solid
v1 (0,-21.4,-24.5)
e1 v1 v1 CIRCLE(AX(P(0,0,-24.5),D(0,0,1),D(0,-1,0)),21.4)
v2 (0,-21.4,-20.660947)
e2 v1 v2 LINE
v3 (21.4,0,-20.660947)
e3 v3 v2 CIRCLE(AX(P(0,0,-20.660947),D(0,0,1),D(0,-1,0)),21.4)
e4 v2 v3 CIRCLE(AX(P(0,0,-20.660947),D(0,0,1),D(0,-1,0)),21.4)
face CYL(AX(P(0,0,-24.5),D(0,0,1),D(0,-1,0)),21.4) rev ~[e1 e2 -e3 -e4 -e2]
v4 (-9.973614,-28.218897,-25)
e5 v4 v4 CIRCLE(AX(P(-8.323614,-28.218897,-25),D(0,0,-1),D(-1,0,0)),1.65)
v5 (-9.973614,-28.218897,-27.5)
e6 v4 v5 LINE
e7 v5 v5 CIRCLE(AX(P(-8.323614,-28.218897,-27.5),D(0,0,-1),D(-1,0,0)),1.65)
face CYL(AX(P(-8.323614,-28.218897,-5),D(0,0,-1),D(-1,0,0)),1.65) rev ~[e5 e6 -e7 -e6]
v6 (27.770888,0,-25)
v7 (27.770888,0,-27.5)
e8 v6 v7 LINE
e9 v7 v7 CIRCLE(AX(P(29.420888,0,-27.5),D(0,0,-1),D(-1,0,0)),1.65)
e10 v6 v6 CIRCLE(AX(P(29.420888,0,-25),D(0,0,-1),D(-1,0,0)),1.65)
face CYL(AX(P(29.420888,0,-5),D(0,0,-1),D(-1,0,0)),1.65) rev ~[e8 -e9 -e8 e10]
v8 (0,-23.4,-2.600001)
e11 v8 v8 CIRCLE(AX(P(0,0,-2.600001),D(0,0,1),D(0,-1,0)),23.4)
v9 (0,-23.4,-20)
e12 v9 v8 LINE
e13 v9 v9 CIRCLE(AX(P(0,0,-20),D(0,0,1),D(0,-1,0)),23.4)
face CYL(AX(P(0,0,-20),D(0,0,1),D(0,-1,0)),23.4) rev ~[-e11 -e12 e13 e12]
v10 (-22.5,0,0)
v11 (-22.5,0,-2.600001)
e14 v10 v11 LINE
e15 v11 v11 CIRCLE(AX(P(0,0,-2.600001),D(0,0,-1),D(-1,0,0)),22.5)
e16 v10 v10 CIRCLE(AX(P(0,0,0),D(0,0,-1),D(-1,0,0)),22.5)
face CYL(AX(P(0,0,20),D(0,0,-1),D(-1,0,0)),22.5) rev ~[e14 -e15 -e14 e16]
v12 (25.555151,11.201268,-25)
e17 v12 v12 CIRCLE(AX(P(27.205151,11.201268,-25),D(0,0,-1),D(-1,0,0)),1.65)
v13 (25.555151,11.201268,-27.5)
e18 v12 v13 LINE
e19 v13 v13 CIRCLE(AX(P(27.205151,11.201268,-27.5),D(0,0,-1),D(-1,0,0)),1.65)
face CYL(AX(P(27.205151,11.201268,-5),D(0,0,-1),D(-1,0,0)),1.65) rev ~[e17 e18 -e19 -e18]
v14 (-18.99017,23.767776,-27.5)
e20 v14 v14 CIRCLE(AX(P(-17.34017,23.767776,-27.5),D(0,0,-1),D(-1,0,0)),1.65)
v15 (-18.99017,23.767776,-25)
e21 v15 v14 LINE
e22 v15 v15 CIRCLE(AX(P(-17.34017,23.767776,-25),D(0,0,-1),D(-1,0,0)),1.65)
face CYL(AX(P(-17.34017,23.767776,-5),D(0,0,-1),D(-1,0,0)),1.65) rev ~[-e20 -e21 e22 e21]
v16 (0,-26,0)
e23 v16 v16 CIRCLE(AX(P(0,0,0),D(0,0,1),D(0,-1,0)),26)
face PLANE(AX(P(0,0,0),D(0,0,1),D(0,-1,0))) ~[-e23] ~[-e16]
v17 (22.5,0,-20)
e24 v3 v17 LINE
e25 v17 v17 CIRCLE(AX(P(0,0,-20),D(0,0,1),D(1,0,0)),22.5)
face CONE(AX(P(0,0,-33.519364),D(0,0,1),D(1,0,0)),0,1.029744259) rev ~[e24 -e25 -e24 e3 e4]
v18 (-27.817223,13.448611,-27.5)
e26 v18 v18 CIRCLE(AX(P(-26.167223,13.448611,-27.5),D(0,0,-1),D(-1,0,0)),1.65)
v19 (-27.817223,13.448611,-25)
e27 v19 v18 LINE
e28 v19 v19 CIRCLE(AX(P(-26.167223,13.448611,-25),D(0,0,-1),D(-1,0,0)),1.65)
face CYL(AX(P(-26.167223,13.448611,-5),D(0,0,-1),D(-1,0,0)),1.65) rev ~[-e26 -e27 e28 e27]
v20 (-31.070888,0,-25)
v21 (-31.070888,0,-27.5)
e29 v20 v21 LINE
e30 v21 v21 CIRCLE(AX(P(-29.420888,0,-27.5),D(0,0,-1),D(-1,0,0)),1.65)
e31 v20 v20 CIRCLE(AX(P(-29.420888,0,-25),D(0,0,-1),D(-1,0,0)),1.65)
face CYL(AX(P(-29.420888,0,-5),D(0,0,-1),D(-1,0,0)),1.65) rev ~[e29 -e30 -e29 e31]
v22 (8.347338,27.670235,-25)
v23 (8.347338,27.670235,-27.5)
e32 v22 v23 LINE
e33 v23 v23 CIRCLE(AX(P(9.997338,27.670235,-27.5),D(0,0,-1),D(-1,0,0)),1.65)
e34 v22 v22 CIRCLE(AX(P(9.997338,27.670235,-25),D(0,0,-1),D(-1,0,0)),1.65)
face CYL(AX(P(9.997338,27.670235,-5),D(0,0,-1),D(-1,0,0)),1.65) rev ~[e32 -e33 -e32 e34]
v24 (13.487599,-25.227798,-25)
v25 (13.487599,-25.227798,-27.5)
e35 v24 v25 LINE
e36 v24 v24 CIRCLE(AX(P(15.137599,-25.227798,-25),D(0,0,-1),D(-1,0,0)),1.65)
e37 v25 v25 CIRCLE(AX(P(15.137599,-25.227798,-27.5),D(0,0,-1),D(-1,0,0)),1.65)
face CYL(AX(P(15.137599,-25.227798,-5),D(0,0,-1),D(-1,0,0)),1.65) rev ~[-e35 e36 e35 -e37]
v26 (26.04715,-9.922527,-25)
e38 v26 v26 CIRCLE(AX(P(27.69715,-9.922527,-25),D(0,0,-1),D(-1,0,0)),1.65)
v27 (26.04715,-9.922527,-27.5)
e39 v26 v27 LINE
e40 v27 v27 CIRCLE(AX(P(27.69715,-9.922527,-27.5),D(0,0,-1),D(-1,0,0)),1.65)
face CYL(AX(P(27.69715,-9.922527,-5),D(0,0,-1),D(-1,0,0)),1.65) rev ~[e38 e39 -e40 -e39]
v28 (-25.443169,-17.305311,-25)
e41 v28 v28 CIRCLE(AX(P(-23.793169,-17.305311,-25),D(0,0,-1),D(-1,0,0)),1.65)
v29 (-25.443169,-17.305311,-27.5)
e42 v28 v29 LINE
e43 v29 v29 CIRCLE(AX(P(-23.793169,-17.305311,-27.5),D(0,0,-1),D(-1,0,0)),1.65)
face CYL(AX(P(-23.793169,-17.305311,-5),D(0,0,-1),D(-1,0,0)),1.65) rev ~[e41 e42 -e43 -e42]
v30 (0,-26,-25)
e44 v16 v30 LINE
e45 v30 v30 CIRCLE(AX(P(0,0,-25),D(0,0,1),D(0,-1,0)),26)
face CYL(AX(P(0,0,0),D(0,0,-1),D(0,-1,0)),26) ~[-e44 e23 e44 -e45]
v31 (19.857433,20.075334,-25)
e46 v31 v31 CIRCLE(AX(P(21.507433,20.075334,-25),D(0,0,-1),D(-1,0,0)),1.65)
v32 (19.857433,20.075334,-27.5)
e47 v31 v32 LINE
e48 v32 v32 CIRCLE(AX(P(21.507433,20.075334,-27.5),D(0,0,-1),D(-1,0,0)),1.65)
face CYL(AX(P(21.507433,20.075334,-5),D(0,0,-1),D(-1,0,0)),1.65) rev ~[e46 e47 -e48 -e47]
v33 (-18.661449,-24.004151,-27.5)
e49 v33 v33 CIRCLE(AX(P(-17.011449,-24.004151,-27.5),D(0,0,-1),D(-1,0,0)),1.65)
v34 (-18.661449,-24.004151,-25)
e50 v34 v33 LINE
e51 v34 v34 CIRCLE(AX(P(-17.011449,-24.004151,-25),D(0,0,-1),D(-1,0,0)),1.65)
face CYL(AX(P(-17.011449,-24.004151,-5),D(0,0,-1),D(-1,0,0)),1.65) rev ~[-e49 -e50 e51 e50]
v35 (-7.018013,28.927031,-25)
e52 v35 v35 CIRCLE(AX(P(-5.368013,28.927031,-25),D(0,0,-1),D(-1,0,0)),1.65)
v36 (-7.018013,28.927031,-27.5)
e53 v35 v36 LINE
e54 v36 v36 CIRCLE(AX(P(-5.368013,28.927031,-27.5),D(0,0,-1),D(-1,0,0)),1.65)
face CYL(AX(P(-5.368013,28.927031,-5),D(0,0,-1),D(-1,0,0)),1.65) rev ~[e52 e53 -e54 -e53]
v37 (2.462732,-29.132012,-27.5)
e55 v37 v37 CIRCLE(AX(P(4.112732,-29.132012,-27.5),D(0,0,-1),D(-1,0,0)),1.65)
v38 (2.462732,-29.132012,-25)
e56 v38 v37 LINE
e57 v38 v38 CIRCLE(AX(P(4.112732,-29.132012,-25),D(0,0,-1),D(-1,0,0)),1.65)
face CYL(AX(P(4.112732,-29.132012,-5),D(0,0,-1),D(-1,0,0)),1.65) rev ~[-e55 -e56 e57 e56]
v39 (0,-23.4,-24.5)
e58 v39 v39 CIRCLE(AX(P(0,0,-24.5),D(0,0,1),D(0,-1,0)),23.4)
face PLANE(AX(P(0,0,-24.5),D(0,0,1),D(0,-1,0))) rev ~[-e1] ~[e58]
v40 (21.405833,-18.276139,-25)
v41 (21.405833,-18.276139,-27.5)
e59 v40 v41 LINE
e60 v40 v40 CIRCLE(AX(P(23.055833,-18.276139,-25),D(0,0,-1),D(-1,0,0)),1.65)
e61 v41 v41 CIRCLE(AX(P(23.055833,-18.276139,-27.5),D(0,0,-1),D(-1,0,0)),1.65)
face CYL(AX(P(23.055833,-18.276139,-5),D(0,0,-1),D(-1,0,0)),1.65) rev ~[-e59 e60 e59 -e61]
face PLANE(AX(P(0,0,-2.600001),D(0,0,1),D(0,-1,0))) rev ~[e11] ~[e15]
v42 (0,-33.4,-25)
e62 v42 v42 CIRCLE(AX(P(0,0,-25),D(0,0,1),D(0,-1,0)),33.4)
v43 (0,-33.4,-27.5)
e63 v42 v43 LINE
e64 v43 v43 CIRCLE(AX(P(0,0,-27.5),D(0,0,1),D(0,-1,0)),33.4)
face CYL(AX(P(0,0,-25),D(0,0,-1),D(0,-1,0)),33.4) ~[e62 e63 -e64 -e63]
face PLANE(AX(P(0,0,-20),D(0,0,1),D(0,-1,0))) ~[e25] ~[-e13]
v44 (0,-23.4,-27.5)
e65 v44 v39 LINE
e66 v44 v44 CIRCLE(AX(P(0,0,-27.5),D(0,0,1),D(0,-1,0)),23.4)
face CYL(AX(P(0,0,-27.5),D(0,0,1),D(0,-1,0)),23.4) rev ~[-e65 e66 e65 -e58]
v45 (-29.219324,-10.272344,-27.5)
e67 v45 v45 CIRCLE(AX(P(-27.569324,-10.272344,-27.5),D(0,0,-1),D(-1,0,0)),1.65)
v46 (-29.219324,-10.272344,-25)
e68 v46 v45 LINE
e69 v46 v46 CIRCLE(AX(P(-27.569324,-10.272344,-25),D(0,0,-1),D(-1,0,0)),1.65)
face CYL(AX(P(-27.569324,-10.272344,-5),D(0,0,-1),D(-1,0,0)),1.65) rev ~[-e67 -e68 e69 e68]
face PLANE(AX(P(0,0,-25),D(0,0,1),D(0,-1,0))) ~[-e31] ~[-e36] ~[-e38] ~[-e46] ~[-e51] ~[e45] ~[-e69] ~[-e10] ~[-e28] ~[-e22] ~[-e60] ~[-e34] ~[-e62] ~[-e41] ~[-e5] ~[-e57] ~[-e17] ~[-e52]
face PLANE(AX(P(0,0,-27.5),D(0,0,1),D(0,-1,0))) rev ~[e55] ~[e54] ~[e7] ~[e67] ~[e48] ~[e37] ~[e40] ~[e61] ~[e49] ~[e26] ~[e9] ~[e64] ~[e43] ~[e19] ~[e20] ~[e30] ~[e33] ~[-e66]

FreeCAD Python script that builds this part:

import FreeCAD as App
import Part
import Sketcher
from FreeCAD import Vector
Q = App.Units.Quantity

doc = App.newDocument("Part")
body = doc.addObject("PartDesign::Body", "Body")

# Sketch on YZ plane
sketch1 = body.newObject("Sketcher::SketchObject", "Sketch")
sketch1.AttachmentSupport = (doc.getObject("YZ_Plane"), [""])
sketch1.MapMode = "FlatFace"
sketch1.addGeometry([
    Part.LineSegment(Vector(0, -2.6, 0), Vector(0, 0, 0)),  # 0
    Part.LineSegment(Vector(0, 0, 0), Vector(-26, 0, 0)),  # 1
    Part.LineSegment(Vector(-26, 0, 0), Vector(-26, -25, 0)),  # 2
    Part.LineSegment(Vector(-26, -25, 0), Vector(-33.4, -25, 0)),  # 3
    Part.LineSegment(Vector(-33.4, -25, 0), Vector(-33.4, -27.5, 0)),  # 4
    Part.LineSegment(Vector(-33.4, -27.5, 0), Vector(-23.4, -27.5, 0)),  # 5
    Part.LineSegment(Vector(-23.4, -27.5, 0), Vector(-23.4, -24.5, 0)),  # 6
    Part.LineSegment(Vector(-23.4, -24.5, 0), Vector(-21.4, -24.5, 0)),  # 7
    Part.LineSegment(Vector(-21.4, -24.5, 0), Vector(-21.4, -20, 0)),  # 8
    Part.LineSegment(Vector(-21.4, -20, 0), Vector(-23.4, -20, 0)),  # 9
    Part.LineSegment(Vector(-23.4, -20, 0), Vector(-23.4, -2.6, 0)),  # 10
    Part.LineSegment(Vector(-23.4, -2.6, 0), Vector(0, -2.6, 0)),  # 11
], False)
sketch1.addConstraint([
    Sketcher.Constraint("Coincident", 0, 2, 1, 1),
    Sketcher.Constraint("Coincident", 1, 2, 2, 1),
    Sketcher.Constraint("Coincident", 2, 2, 3, 1),
    Sketcher.Constraint("Coincident", 3, 2, 4, 1),
    Sketcher.Constraint("Coincident", 4, 2, 5, 1),
    Sketcher.Constraint("Coincident", 5, 2, 6, 1),
    Sketcher.Constraint("Coincident", 6, 2, 7, 1),
    Sketcher.Constraint("Coincident", 7, 2, 8, 1),
    Sketcher.Constraint("Coincident", 8, 2, 9, 1),
    Sketcher.Constraint("Coincident", 9, 2, 10, 1),
    Sketcher.Constraint("Coincident", 10, 2, 11, 1),
    Sketcher.Constraint("Coincident", 11, 2, 0, 1),
    Sketcher.Constraint("Vertical", 0),
    Sketcher.Constraint("Horizontal", 1),
    Sketcher.Constraint("Vertical", 2),
    Sketcher.Constraint("Horizontal", 3),
    Sketcher.Constraint("Vertical", 4),
    Sketcher.Constraint("Horizontal", 5),
    Sketcher.Constraint("Vertical", 6),
    Sketcher.Constraint("Horizontal", 7),
    Sketcher.Constraint("Vertical", 8),
    Sketcher.Constraint("Horizontal", 9),
    Sketcher.Constraint("Vertical", 10),
    Sketcher.Constraint("Horizontal", 11),
    Sketcher.Constraint("Coincident", 0, 2, -1, 1),
    Sketcher.Constraint("Vertical", 6, 2, 9, 2),
    Sketcher.Constraint("DistanceX", 1, 2, 1, 1, Q("26 mm")),
    Sketcher.Constraint("DistanceX", 5, 1, 5, 2, Q("10 mm")),
    Sketcher.Constraint("DistanceX", 7, 1, 7, 2, Q("2 mm")),
    Sketcher.Constraint("DistanceY", 2, 2, 2, 1, Q("25 mm")),
    Sketcher.Constraint("DistanceY", 6, 1, 6, 2, Q("3 mm")),
    Sketcher.Constraint("DistanceX", 3, 2, 3, 1, Q("7.4 mm")),
    Sketcher.Constraint("DistanceY", 0, 1, 0, 2, Q("2.600001 mm")),
    Sketcher.Constraint("DistanceY", 4, 2, 4, 1, Q("2.5 mm")),
    Sketcher.Constraint("DistanceY", 8, 1, 8, 2, Q("4.5 mm")),
])
revolution = body.newObject("PartDesign::Revolution", "Revolution")
revolution.Profile = sketch1
revolution.ReferenceAxis = (sketch1, ["V_Axis"])
revolution.Angle = 360

# Sketch on XY plane
sketch2 = body.newObject("Sketcher::SketchObject", "Sketch001")
sketch2.AttachmentSupport = (doc.getObject("XY_Plane"), [""])
sketch2.MapMode = "FlatFace"
sketch2.addGeometry(Part.Circle(Vector(0, 0, 0), Vector(0, 0, 1), 22), False)
sketch2.addConstraint([
    Sketcher.Constraint("Coincident", 0, 3, -1, 1),
    Sketcher.Constraint("Diameter", 0, Q("45 mm")),
])
doc.recompute()
hole = body.newObject("PartDesign::Hole", "Hole")
hole.Profile = sketch2
hole.ThreadType = "None"
hole.Diameter = 45
hole.DepthType = "Dimension"
hole.Depth = 20
hole.DrillPoint = "Angled"
hole.DrillPointAngle = 118

# Sketch on XY plane
sketch3 = body.newObject("Sketcher::SketchObject", "Sketch002")
sketch3.AttachmentSupport = (doc.getObject("XY_Plane"), [""])
sketch3.MapMode = "FlatFace"
sketch3.AttachmentOffset = App.Placement(Vector(0, 0, -25), App.Rotation())
sketch3.addGeometry([
    Part.Circle(Vector(-26.2, 13.4, 0), Vector(0, 0, 1), 1.6),  # 0
    Part.Circle(Vector(-17.3, 23.8, 0), Vector(0, 0, 1), 1.6),  # 1
    Part.Circle(Vector(-5.4, 28.9, 0), Vector(0, 0, 1), 1.6),  # 2
    Part.Circle(Vector(10, 27.7, 0), Vector(0, 0, 1), 1.6),  # 3
    Part.Circle(Vector(21.5, 20.1, 0), Vector(0, 0, 1), 1.6),  # 4
    Part.Circle(Vector(27.2, 11.2, 0), Vector(0, 0, 1), 1.6),  # 5
    Part.Circle(Vector(29.4, 0, 0), Vector(0, 0, 1), 1.6),  # 6
    Part.Circle(Vector(27.7, -9.9, 0), Vector(0, 0, 1), 1.6),  # 7
    Part.Circle(Vector(23.1, -18.3, 0), Vector(0, 0, 1), 1.6),  # 8
    Part.Circle(Vector(15.1, -25.2, 0), Vector(0, 0, 1), 1.6),  # 9
    Part.Circle(Vector(4.1, -29.1, 0), Vector(0, 0, 1), 1.6),  # 10
    Part.Circle(Vector(-8.3, -28.2, 0), Vector(0, 0, 1), 1.6),  # 11
    Part.Circle(Vector(-17, -24, 0), Vector(0, 0, 1), 1.6),  # 12
    Part.Circle(Vector(-23.8, -17.3, 0), Vector(0, 0, 1), 1.6),  # 13
    Part.Circle(Vector(-29.4, 0, 0), Vector(0, 0, 1), 1.6),  # 14
    Part.Circle(Vector(-27.6, -10.3, 0), Vector(0, 0, 1), 1.6),  # 15
], False)
sketch3.addConstraint([
    Sketcher.Constraint("Equal", 0, 1),
    Sketcher.Constraint("Equal", 1, 2),
    Sketcher.Constraint("Equal", 2, 3),
    Sketcher.Constraint("Equal", 3, 4),
    Sketcher.Constraint("Equal", 4, 5),
    Sketcher.Constraint("Equal", 5, 6),
    Sketcher.Constraint("Equal", 6, 7),
    Sketcher.Constraint("Equal", 7, 8),
    Sketcher.Constraint("Equal", 8, 9),
    Sketcher.Constraint("Equal", 9, 10),
    Sketcher.Constraint("Equal", 10, 11),
    Sketcher.Constraint("Equal", 11, 12),
    Sketcher.Constraint("Equal", 12, 13),
    Sketcher.Constraint("Equal", 13, 14),
    Sketcher.Constraint("Equal", 14, 15),
    Sketcher.Constraint("Symmetric", 6, 3, 14, 3, -1, 1),
    Sketcher.Constraint("PointOnObject", 6, 3, -1),
    Sketcher.Constraint("Diameter", 0, Q("3.3 mm")),
    Sketcher.Constraint("DistanceX", 5, 3, 7, 3, Q("0.491999 mm")),
    Sketcher.Constraint("DistanceX", -1, 1, 9, 3, Q("15.137599 mm")),
    Sketcher.Constraint("DistanceY", 4, 3, 3, 3, Q("7.594901 mm")),
    Sketcher.Constraint("DistanceX", 2, 3, 6, 3, Q("34.788901 mm")),
    Sketcher.Constraint("DistanceX", 4, 3, 8, 3, Q("1.548401 mm")),
    Sketcher.Constraint("DistanceX", 10, 3, 8, 3, Q("18.943101 mm")),
    Sketcher.Constraint("DistanceY", 11, 3, 9, 3, Q("2.991099 mm")),
    Sketcher.Constraint("DistanceX", 13, 3, 10, 3, Q("27.905901 mm")),
    Sketcher.Constraint("DistanceY", 10, 3, 13, 3, Q("11.826701 mm")),
    Sketcher.Constraint("DistanceX", 15, 3, 0, 3, Q("1.402101 mm")),
    Sketcher.Constraint("DistanceY", -1, 1, 0, 3, Q("13.448611 mm")),
    Sketcher.Constraint("DistanceX", 1, 3, -1, 1, Q("17.34017 mm")),
    Sketcher.Constraint("DistanceY", -1, 1, 2, 3, Q("28.927031 mm")),
    Sketcher.Constraint("DistanceX", -1, 1, 3, 3, Q("9.997338 mm")),
    Sketcher.Constraint("DistanceX", -1, 1, 5, 3, Q("27.205151 mm")),
    Sketcher.Constraint("DistanceY", -1, 1, 5, 3, Q("11.201268 mm")),
    Sketcher.Constraint("DistanceX", -1, 1, 6, 3, Q("29.420888 mm")),
    Sketcher.Constraint("DistanceY", 8, 3, -1, 1, Q("18.276139 mm")),
    Sketcher.Constraint("DistanceX", -1, 1, 10, 3, Q("4.112732 mm")),
    Sketcher.Constraint("DistanceY", 10, 3, -1, 1, Q("29.132012 mm")),
    Sketcher.Constraint("DistanceX", 12, 3, -1, 1, Q("17.011449 mm")),
    Sketcher.Constraint("DistanceY", 12, 3, -1, 1, Q("24.004151 mm")),
    Sketcher.Constraint("DistanceX", 0, 3, 2, 3, Q("20.79921 mm")),
    Sketcher.Constraint("DistanceY", 1, 3, 3, 3, Q("3.902459 mm")),
    Sketcher.Constraint("DistanceY", 5, 3, 1, 3, Q("12.566508 mm")),
    Sketcher.Constraint("DistanceY", 7, 3, 4, 3, Q("29.99786 mm")),
    Sketcher.Constraint("DistanceY", 9, 3, 8, 3, Q("6.951659 mm")),
    Sketcher.Constraint("DistanceX", 0, 3, 11, 3, Q("17.843609 mm")),
    Sketcher.Constraint("DistanceY", 15, 3, -1, 1, Q("10.272344 mm")),
])
doc.recompute()
hole2 = body.newObject("PartDesign::Hole", "Hole001")
hole2.Profile = sketch3
hole2.ThreadType = "None"
hole2.Diameter = 3.3
hole2.DepthType = "Dimension"
hole2.Depth = 20
hole2.DrillPoint = "Angled"
hole2.DrillPointAngle = 118

doc.recompute()
